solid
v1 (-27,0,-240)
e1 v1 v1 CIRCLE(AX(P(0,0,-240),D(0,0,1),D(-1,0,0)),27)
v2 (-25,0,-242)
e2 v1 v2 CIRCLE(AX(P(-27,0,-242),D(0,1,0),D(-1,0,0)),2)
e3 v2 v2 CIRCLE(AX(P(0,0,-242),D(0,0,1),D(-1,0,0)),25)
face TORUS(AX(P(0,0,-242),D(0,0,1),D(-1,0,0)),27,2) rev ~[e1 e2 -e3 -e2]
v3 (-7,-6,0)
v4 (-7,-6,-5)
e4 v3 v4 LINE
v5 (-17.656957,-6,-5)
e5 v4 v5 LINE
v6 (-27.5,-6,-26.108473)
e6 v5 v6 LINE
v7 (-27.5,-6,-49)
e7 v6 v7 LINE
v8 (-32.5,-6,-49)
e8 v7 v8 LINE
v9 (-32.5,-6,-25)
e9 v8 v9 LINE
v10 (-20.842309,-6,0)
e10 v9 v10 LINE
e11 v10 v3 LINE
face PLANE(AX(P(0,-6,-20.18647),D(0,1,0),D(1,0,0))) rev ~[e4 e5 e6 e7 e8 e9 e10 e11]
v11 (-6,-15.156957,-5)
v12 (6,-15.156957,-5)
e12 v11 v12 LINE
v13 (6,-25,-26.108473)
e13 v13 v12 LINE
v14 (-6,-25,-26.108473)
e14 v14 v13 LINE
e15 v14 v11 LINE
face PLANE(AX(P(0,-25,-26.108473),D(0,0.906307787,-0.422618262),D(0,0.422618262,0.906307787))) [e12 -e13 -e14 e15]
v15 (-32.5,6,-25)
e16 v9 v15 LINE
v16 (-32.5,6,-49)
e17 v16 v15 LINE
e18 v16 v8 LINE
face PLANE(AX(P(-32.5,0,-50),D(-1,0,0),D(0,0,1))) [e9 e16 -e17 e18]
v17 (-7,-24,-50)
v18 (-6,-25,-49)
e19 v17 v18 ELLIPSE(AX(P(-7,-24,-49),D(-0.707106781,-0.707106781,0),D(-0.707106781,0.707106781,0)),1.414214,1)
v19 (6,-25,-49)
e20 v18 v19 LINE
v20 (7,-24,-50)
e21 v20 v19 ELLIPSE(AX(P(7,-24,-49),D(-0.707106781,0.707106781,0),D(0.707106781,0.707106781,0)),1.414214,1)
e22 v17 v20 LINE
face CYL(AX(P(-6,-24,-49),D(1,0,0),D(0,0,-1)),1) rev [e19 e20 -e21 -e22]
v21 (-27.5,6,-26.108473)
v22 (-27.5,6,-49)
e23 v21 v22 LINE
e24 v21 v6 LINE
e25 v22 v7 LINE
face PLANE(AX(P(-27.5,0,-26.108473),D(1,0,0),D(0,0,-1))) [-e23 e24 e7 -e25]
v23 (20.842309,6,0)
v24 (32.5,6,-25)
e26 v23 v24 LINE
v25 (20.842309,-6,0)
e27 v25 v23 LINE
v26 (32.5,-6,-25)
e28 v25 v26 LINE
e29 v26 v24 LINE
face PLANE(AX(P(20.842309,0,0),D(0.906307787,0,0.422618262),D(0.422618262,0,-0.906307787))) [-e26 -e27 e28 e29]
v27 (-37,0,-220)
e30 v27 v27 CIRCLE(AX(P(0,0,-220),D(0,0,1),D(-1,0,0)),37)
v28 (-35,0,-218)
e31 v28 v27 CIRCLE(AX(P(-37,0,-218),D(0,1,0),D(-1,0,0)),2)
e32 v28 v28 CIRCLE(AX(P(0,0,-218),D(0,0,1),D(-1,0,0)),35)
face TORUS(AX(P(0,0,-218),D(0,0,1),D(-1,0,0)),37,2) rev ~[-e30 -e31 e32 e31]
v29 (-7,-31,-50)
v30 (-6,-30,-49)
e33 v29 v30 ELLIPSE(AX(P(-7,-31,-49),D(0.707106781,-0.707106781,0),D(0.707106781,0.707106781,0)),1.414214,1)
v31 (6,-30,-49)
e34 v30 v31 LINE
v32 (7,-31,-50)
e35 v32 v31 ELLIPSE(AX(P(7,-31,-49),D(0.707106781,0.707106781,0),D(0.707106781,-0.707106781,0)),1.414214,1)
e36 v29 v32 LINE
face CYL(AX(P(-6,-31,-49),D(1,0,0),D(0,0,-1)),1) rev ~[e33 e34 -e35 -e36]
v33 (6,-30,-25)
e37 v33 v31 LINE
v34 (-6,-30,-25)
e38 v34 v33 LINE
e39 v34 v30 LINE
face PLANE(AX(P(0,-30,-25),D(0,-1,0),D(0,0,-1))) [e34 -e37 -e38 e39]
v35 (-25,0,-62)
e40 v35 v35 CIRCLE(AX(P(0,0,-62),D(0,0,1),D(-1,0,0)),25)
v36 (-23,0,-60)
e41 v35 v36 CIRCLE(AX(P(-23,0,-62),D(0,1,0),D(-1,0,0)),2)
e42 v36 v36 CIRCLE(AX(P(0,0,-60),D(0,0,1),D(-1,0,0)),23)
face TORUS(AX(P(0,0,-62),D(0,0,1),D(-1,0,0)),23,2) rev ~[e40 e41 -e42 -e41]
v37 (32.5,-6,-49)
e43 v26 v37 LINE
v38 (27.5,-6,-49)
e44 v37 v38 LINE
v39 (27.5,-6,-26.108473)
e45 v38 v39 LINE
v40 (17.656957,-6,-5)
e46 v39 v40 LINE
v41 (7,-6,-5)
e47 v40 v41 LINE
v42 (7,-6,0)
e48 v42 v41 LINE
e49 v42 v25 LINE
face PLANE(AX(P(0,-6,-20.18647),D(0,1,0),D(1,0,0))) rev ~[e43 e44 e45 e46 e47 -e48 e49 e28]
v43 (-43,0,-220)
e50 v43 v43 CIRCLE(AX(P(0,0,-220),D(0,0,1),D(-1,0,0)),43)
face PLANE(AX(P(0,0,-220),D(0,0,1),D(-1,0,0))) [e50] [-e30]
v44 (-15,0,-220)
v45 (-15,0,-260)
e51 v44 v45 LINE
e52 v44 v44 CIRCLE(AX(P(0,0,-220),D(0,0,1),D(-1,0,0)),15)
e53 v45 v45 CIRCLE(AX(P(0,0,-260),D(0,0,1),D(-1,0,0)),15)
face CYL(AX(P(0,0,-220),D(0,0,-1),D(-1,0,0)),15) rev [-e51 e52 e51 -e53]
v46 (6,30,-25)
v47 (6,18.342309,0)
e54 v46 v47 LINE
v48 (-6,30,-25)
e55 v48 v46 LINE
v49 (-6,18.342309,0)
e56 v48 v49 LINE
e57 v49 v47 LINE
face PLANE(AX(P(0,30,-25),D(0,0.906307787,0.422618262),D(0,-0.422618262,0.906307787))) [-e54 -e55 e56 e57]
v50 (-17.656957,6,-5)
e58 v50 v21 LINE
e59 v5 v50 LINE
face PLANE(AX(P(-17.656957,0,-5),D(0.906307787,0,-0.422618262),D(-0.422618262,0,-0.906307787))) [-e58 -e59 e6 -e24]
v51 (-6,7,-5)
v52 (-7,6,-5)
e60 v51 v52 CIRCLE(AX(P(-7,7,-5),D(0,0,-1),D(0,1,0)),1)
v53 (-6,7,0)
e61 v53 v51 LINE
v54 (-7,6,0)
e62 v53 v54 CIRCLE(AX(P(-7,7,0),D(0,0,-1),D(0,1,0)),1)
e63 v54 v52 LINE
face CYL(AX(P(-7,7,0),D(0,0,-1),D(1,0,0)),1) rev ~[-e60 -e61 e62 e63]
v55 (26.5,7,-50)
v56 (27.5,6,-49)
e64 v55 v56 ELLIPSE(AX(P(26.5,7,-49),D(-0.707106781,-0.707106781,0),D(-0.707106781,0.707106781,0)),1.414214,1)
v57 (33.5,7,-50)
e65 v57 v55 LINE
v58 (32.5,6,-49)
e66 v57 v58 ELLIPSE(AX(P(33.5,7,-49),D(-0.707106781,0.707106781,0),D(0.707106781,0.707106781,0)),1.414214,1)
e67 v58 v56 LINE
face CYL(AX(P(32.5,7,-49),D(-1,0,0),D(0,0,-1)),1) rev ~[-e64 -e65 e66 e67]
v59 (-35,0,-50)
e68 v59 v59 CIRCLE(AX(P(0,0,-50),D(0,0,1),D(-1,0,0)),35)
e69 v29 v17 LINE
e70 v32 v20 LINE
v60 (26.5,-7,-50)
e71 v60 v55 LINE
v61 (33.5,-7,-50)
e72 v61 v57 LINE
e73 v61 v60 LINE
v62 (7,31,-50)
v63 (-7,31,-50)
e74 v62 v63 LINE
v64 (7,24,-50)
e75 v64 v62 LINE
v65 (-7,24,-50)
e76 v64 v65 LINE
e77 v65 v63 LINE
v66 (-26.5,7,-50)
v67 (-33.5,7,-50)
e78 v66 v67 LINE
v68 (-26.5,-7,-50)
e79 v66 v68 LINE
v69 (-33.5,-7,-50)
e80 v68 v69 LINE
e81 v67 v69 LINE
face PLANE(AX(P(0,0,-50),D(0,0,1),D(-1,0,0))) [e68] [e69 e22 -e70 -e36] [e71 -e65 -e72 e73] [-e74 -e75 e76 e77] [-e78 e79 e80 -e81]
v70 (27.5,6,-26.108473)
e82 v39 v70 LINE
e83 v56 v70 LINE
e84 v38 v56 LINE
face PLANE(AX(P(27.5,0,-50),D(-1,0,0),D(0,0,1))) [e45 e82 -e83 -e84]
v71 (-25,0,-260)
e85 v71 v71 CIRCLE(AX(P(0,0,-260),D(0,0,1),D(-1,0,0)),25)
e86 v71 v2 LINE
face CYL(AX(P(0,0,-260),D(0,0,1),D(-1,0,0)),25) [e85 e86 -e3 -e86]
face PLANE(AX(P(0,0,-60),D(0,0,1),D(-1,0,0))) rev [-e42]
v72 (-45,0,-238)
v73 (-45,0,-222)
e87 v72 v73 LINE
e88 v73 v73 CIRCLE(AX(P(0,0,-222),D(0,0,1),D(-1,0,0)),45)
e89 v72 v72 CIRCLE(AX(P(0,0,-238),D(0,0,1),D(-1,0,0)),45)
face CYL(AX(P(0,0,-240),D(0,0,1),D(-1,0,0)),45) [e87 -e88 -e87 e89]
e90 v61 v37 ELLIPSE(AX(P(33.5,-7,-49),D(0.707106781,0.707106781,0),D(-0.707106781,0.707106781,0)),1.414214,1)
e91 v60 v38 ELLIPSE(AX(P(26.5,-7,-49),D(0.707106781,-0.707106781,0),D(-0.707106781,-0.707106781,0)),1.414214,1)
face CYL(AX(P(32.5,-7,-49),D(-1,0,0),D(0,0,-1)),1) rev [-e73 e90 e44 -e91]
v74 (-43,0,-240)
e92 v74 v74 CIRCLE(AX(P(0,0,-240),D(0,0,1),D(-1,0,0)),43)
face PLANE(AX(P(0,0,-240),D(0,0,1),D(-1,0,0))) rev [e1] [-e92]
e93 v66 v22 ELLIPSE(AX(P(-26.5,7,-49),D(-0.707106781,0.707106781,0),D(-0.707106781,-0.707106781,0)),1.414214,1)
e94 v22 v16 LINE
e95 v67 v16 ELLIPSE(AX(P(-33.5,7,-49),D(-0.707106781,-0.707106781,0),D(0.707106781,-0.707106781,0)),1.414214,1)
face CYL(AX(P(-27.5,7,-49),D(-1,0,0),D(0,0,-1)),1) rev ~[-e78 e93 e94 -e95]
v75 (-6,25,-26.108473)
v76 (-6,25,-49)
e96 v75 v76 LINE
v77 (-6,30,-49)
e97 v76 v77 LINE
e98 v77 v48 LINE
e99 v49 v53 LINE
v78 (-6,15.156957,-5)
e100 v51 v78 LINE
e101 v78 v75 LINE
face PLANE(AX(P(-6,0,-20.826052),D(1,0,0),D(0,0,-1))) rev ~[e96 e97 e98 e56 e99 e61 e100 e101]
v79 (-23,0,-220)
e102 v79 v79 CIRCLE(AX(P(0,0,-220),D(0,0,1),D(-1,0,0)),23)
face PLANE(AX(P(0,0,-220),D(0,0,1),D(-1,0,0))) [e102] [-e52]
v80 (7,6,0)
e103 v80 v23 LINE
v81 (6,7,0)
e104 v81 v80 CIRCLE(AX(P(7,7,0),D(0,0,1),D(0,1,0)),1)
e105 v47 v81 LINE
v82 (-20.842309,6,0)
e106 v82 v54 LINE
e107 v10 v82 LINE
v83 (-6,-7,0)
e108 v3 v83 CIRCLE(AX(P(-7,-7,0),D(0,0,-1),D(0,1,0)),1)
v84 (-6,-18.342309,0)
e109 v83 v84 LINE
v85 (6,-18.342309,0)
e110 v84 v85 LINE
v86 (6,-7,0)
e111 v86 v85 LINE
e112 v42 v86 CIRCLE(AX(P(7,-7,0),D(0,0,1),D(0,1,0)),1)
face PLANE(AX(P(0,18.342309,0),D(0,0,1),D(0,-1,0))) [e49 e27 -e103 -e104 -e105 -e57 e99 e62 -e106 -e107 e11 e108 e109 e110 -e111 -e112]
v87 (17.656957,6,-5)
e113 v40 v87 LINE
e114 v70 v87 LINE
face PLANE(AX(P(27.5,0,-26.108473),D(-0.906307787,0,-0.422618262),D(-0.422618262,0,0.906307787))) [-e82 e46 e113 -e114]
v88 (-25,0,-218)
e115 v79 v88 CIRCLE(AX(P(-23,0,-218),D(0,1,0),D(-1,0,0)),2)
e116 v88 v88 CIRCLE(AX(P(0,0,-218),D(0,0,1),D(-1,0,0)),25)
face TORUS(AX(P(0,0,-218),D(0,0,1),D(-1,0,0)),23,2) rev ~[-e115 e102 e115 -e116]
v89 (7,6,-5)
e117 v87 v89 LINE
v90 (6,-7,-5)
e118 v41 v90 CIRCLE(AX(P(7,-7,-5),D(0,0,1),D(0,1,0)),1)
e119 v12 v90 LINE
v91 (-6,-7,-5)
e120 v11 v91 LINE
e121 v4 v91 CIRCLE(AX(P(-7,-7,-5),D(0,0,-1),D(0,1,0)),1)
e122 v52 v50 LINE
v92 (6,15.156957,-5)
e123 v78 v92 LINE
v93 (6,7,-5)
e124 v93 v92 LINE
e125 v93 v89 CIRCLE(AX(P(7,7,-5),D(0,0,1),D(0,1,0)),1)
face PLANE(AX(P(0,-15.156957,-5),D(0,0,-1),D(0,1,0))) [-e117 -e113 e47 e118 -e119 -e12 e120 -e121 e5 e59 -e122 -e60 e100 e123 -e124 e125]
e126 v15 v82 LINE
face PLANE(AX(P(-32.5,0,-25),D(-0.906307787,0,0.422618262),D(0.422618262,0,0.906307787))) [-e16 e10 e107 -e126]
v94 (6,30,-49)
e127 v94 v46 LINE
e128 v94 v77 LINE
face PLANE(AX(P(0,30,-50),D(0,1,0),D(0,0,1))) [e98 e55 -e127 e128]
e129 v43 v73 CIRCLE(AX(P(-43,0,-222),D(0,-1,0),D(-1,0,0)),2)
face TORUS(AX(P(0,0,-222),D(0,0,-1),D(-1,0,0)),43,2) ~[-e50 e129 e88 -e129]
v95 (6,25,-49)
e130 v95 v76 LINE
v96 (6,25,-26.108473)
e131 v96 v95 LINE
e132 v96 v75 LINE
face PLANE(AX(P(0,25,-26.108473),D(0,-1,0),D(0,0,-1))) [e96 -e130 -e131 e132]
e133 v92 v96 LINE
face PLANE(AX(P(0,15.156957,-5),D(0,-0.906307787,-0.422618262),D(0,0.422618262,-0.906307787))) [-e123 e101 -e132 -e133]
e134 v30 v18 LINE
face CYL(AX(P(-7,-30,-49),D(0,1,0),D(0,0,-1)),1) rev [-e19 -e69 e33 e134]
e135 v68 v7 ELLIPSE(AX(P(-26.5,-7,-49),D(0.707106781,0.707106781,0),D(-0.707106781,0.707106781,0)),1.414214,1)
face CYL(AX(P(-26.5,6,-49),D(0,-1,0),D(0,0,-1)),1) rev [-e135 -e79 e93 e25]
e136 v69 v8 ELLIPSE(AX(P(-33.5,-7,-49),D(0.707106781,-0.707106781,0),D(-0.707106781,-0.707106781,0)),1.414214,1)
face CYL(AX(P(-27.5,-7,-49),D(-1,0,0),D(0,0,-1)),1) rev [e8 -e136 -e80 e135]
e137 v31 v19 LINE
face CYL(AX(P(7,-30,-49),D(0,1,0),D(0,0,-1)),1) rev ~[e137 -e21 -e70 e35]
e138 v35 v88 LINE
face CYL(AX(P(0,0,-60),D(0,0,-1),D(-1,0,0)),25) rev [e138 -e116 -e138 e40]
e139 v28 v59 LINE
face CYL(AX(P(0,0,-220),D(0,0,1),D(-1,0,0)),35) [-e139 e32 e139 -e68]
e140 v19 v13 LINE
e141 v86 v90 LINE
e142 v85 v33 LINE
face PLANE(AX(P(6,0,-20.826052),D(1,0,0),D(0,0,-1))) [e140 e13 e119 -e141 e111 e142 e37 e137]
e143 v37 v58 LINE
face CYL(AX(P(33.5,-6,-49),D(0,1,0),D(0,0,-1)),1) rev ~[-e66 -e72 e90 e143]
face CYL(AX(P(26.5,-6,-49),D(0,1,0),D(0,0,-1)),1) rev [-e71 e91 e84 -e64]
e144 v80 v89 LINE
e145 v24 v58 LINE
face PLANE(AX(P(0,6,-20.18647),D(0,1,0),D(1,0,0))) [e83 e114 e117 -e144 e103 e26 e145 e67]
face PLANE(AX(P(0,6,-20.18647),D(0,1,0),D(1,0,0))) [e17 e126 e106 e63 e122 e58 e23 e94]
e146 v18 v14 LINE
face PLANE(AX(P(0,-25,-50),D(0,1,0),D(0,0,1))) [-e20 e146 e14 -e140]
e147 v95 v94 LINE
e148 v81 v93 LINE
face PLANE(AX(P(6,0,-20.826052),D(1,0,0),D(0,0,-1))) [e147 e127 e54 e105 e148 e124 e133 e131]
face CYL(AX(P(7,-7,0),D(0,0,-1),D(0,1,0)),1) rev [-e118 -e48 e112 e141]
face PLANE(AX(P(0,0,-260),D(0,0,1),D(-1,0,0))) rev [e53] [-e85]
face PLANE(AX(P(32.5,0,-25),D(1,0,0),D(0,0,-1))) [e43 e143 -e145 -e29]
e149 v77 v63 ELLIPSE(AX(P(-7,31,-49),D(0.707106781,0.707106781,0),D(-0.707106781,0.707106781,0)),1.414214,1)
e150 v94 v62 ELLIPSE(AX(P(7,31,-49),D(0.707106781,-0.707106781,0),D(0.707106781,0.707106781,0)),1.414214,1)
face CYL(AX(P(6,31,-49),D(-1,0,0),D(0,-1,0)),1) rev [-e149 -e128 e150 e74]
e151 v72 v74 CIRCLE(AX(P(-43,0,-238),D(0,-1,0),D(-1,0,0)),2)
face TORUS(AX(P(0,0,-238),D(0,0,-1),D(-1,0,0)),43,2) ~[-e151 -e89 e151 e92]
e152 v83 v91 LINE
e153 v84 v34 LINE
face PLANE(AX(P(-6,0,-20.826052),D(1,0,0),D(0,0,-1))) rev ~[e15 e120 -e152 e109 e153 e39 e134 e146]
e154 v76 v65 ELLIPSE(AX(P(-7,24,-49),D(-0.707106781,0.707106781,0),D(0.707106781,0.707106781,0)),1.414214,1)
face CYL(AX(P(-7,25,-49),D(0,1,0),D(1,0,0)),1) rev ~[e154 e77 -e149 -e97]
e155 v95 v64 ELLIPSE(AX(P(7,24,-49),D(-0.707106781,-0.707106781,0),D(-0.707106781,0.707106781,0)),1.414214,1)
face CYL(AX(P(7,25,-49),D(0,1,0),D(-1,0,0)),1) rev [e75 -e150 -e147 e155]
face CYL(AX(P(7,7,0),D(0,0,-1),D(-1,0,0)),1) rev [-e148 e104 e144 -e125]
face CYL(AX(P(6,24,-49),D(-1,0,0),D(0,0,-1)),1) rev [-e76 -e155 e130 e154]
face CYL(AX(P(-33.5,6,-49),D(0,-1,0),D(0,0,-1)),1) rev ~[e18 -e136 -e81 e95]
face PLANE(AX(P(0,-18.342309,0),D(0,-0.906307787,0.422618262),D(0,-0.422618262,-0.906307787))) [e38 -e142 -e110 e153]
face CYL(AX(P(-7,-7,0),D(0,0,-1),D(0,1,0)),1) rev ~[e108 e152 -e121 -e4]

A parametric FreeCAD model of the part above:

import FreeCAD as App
import Part
import Sketcher
Q = App.Units.Quantity


def edges_at(feature, points):
    """Names of the edges that pass closest to the given points."""
    edges = feature.Shape.Edges
    near = lambda p: min(range(len(edges)), key=lambda i: edges[i].distToShape(Part.Vertex(*p))[0])
    return sorted({f"Edge{near(p) + 1}" for p in points})


def add_polygon(sketch, points):
    """Adds a closed chain of lines whose ends are joined by coincident constraints."""
    first, n = sketch.GeometryCount, len(points)
    for a, b in zip(points, points[1:] + points[:1]):
        sketch.addGeometry(Part.LineSegment(App.Vector(*a, 0), App.Vector(*b, 0)), False)
    for i in range(n):
        sketch.addConstraint(Sketcher.Constraint("Coincident", first + i, 2, first + (i + 1) % n, 1))

doc = App.newDocument("Part")
body = doc.addObject("PartDesign::Body", "Body")

# Sketch on XZ plane
sketch1 = doc.addObject("Sketcher::SketchObject", "Sketch")
body.addObject(sketch1)
sketch1.AttachmentSupport = (doc.XZ_Plane, [""])
sketch1.MapMode = "FlatFace"
add_polygon(sketch1, [(0, -260), (-25, -260), (-25, -240), (-45, -240), (-45, -220), (-35, -220), (-35, -50), (0, -50)])  # lines 0-7
sketch1.addConstraint([
    Sketcher.Constraint("Horizontal", 0),
    Sketcher.Constraint("Vertical", 1),
    Sketcher.Constraint("Horizontal", 2),
    Sketcher.Constraint("Vertical", 3),
    Sketcher.Constraint("Horizontal", 4),
    Sketcher.Constraint("Vertical", 5),
    Sketcher.Constraint("Horizontal", 6),
    Sketcher.Constraint("Vertical", 7),
    Sketcher.Constraint("PointOnObject", 6, 2, -2),
    Sketcher.Constraint("Equal", 2, 1),
    Sketcher.Constraint("Equal", 1, 3),
    Sketcher.Constraint("DistanceX", 0, 2, 0, 1, Q("25 mm")),
    Sketcher.Constraint("DistanceX", 2, 2, 2, 1, Q("20 mm")),
    Sketcher.Constraint("DistanceX", 4, 1, 4, 2, Q("10 mm")),
    Sketcher.Constraint("DistanceY", 5, 1, 5, 2, Q("170 mm")),
    Sketcher.Constraint("DistanceY", 0, 2, -1, 1, Q("260 mm")),
])
revolution = doc.addObject("PartDesign::Revolution", "Revolution")
body.addObject(revolution)
revolution.Profile = sketch1
revolution.ReferenceAxis = (sketch1, ["V_Axis"])
revolution.Angle = 360

# Sketch on XZ plane
sketch2 = doc.addObject("Sketcher::SketchObject", "Sketch001")
body.addObject(sketch2)
sketch2.AttachmentSupport = (doc.XZ_Plane, [""])
sketch2.MapMode = "FlatFace"
add_polygon(sketch2, [(-32, -50), (-32, -25), (-21, 0), (21, 0), (32, -25), (32, -50), (28, -50), (28, -26), (18, -5), (-18, -5), (-28, -26), (-28, -50)])  # lines 0-11
sketch2.addConstraint([
    Sketcher.Constraint("Vertical", 0),
    Sketcher.Constraint("Horizontal", 2),
    Sketcher.Constraint("Vertical", 4),
    Sketcher.Constraint("Horizontal", 5),
    Sketcher.Constraint("Vertical", 6),
    Sketcher.Constraint("Horizontal", 8),
    Sketcher.Constraint("Vertical", 10),
    Sketcher.Constraint("Horizontal", 11),
    Sketcher.Constraint("Symmetric", 1, 2, 2, 2, -1, 1),
    Sketcher.Constraint("Symmetric", 0, 2, 3, 2, -2),
    Sketcher.Constraint("Symmetric", 6, 2, 9, 2, -2),
    Sketcher.Constraint("Parallel", 3, 7),
    Sketcher.Constraint("Parallel", 1, 9),
    Sketcher.Constraint("Horizontal", 5, 2, 10, 2),
    Sketcher.Constraint("DistanceX", 5, 2, 5, 1, Q("5 mm")),
    Sketcher.Constraint("DistanceY", 0, 1, 0, 2, Q("25 mm")),
    Sketcher.Constraint("Angle", 1, Q("65 deg")),
    Sketcher.Constraint("DistanceY", 0, 2, -1, 1, Q("25 mm")),
    Sketcher.Constraint("DistanceY", 7, 2, -1, 1, Q("5 mm")),
    Sketcher.Constraint("DistanceX", 0, 2, 3, 2, Q("65 mm")),
    Sketcher.Constraint("DistanceX", 8, 2, 8, 1, Q("35.313914 mm")),
])
pad1 = doc.addObject("PartDesign::Pad", "Pad")
body.addObject(pad1)
pad1.Profile = sketch2
pad1.Length = 12
pad1.Midplane = True

# Sketch on YZ plane
sketch3 = doc.addObject("Sketcher::SketchObject", "Sketch002")
body.addObject(sketch3)
sketch3.AttachmentSupport = (doc.YZ_Plane, [""])
sketch3.MapMode = "FlatFace"
add_polygon(sketch3, [(30, -50), (30, -25), (18, 0), (-18, 0), (-30, -25), (-30, -50), (-25, -50), (-25, -26), (-15, -5), (15, -5), (25, -26), (25, -50)])  # lines 0-11
sketch3.addConstraint([
    Sketcher.Constraint("Vertical", 0),
    Sketcher.Constraint("Horizontal", 2),
    Sketcher.Constraint("Vertical", 4),
    Sketcher.Constraint("Horizontal", 5),
    Sketcher.Constraint("Vertical", 6),
    Sketcher.Constraint("Horizontal", 8),
    Sketcher.Constraint("Vertical", 10),
    Sketcher.Constraint("Horizontal", 11),
    Sketcher.Constraint("Symmetric", 1, 2, 2, 2, -1, 1),
    Sketcher.Constraint("Symmetric", 0, 2, 3, 2, -2),
    Sketcher.Constraint("Symmetric", 6, 2, 9, 2, -2),
    Sketcher.Constraint("Parallel", 3, 7),
    Sketcher.Constraint("Parallel", 1, 9),
    Sketcher.Constraint("Horizontal", 5, 2, 10, 2),
    Sketcher.Constraint("DistanceX", 5, 1, 5, 2, Q("5 mm")),
    Sketcher.Constraint("DistanceY", 0, 1, 0, 2, Q("25 mm")),
    Sketcher.Constraint("Angle", 1, Q("115 deg")),
    Sketcher.Constraint("DistanceX", -1, 1, 0, 2, Q("30 mm")),
    Sketcher.Constraint("DistanceY", 0, 2, -1, 1, Q("25 mm")),
    Sketcher.Constraint("DistanceY", 7, 2, -1, 1, Q("5 mm")),
    Sketcher.Constraint("DistanceX", 8, 1, 8, 2, Q("30.313914 mm")),
])
pad2 = doc.addObject("PartDesign::Pad", "Pad001")
body.addObject(pad2)
pad2.Profile = sketch3
pad2.Length = 12
pad2.Midplane = True

# Sketch on XZ plane
sketch4 = doc.addObject("Sketcher::SketchObject", "Sketch003")
body.addObject(sketch4)
sketch4.AttachmentSupport = (doc.XZ_Plane, [""])
sketch4.MapMode = "FlatFace"
add_polygon(sketch4, [(-15, -220), (-25, -220), (-25, -60), (0, -60), (0, -260), (-15, -260)])  # lines 0-5
sketch4.addConstraint([
    Sketcher.Constraint("Horizontal", 0),
    Sketcher.Constraint("Vertical", 1),
    Sketcher.Constraint("Horizontal", 2),
    Sketcher.Constraint("Vertical", 3),
    Sketcher.Constraint("Horizontal", 4),
    Sketcher.Constraint("Vertical", 5),
    Sketcher.Constraint("PointOnObject", 2, 2, -2),
    Sketcher.Constraint("DistanceX", 0, 2, 0, 1, Q("10 mm")),
    Sketcher.Constraint("DistanceX", 2, 1, 2, 2, Q("25 mm")),
    Sketcher.Constraint("DistanceY", 1, 1, 1, 2, Q("160 mm")),
    Sketcher.Constraint("DistanceY", 3, 2, 3, 1, Q("200 mm")),
    Sketcher.Constraint("DistanceY", 0, 2, -1, 1, Q("220 mm")),
])
groove = doc.addObject("PartDesign::Groove", "Groove")
body.addObject(groove)
groove.Profile = sketch4
groove.ReferenceAxis = (sketch4, ["V_Axis"])
groove.Angle = 360
doc.recompute()

fillet = doc.addObject("PartDesign::Fillet", "Fillet")
body.addObject(fillet)
fillet.Base = (groove, edges_at(groove, [
    (-30, -6, -50),
    (-27.5, 0, -50),
    (-32.5, 0, -50),
    (30, -6, -50),
    (32.5, 0, -50),
    (27.5, 0, -50),
    (-30, 6, -50),
    (30, 6, -50),
    (-6, -6, -2.5),
    (6, -6, -2.5),
    (6, 6, -2.5),
    (6, 27.5, -50),
    (-6, 6, -2.5),
    (-6, 27.5, -50),
    (0, 25, -50),
    (0, 30, -50),
    (-6, -27.5, -50),
    (0, -30, -50),
    (0, -25, -50),
    (6, -27.5, -50),
]))
fillet.Radius = 1
doc.recompute()

fillet2 = doc.addObject("PartDesign::Fillet", "Fillet001")
body.addObject(fillet2)
fillet2.Base = (fillet, edges_at(fillet, [(35, 0, -220), (25, 0, -240)]))
fillet2.Radius = 2
doc.recompute()

fillet3 = doc.addObject("PartDesign::Fillet", "Fillet002")
body.addObject(fillet3)
fillet3.Base = (fillet2, edges_at(fillet2, [
    (25, 0, -60),
    (25, 0, -220),
    (45, 0, -220),
    (45, 0, -240),
]))
fillet3.Radius = 2

doc.recompute()
